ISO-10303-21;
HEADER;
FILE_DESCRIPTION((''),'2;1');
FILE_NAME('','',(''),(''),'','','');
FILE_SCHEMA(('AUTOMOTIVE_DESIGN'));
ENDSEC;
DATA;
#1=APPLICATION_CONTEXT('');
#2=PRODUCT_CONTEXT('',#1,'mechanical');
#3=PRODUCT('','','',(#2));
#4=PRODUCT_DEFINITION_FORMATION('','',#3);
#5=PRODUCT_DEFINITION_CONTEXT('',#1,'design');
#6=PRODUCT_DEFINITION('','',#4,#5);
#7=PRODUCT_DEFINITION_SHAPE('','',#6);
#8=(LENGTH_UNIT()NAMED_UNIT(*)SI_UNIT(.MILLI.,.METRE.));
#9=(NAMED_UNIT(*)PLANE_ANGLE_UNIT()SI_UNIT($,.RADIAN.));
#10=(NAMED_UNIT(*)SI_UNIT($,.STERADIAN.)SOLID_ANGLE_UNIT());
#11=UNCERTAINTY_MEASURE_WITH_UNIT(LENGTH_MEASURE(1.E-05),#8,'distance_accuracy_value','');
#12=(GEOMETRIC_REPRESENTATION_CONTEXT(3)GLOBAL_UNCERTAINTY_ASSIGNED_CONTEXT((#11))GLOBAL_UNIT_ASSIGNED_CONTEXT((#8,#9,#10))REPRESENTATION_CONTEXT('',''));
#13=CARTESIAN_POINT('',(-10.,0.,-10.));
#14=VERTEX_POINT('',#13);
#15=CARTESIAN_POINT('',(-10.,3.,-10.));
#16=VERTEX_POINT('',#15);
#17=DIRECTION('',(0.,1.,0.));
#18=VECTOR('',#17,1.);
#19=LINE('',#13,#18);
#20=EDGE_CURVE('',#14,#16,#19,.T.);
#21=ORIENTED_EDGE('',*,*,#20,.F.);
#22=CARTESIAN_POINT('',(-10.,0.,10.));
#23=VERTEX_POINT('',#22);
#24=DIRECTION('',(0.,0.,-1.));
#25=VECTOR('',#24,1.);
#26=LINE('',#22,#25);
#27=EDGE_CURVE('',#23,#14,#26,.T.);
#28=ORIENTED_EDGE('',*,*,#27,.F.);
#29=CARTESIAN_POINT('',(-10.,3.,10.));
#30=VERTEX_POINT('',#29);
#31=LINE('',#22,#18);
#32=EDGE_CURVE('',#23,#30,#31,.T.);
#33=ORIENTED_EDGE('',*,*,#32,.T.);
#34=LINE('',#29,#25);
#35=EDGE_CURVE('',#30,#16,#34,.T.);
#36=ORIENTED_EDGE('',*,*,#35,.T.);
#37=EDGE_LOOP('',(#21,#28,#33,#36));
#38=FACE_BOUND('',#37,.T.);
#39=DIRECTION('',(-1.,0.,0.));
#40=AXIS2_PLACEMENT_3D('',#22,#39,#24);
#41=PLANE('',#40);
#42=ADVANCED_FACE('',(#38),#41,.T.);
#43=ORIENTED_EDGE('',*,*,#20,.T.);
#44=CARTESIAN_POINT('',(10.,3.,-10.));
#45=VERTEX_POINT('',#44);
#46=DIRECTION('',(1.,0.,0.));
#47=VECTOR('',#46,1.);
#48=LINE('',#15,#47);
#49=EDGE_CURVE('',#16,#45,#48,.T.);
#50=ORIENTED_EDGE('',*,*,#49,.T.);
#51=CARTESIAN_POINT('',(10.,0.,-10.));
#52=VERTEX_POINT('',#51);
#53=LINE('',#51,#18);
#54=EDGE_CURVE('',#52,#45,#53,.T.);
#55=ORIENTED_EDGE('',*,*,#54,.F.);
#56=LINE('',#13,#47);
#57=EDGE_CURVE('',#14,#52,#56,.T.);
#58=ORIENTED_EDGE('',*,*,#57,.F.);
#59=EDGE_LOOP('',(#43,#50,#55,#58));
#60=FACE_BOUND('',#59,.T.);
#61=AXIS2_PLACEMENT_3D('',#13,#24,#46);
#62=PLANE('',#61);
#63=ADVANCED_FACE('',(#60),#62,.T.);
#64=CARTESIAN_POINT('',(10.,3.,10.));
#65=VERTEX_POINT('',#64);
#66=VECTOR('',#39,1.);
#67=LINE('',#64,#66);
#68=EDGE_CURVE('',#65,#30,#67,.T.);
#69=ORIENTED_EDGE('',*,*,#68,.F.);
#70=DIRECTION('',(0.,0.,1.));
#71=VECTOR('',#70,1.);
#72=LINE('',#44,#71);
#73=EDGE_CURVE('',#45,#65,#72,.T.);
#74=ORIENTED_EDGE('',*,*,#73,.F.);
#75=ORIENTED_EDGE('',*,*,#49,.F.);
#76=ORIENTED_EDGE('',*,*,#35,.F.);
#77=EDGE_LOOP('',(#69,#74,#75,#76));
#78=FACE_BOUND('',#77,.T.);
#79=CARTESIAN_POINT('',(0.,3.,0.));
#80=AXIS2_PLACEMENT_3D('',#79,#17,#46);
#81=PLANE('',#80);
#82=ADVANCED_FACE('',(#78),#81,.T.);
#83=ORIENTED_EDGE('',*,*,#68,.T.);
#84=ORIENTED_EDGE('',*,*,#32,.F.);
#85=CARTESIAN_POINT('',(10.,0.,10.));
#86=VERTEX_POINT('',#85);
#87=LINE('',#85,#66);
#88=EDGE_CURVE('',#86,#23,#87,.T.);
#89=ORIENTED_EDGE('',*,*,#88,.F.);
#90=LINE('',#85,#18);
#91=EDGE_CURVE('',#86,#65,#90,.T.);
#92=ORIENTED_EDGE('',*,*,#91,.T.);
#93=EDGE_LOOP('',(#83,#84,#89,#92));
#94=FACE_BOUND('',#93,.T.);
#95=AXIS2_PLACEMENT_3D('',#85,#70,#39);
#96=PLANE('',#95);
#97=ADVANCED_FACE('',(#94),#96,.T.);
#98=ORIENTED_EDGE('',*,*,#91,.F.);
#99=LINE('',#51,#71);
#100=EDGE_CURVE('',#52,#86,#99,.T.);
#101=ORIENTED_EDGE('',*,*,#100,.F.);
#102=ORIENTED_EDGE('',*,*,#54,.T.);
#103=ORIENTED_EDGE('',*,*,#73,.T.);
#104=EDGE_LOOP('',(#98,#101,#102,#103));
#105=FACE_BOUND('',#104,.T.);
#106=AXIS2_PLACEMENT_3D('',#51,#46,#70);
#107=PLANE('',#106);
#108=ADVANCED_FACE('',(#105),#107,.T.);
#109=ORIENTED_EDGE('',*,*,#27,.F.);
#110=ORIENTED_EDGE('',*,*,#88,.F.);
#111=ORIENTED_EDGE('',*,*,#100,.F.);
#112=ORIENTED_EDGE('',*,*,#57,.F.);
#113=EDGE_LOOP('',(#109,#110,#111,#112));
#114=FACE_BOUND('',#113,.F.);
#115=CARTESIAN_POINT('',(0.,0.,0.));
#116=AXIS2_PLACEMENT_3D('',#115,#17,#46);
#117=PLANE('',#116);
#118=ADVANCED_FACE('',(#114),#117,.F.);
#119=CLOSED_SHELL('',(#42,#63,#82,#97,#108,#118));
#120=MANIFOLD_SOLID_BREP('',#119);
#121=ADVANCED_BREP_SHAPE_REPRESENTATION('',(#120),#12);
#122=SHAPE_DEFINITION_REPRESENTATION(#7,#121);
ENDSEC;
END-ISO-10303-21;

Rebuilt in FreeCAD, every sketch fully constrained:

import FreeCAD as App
import Part
import Sketcher

doc = App.newDocument("Part")
body = doc.addObject("PartDesign::Body", "Body")

# Sketch on XZ plane
sketch1 = doc.addObject("Sketcher::SketchObject", "Sketch")
body.addObject(sketch1)
sketch1.AttachmentSupport = (doc.XZ_Plane, [""])
sketch1.MapMode = "FlatFace"
sketch1.addGeometry([
    Part.LineSegment(App.Vector(10, -10, 0), App.Vector(-10, -10, 0)),
    Part.LineSegment(App.Vector(-10, -10, 0), App.Vector(-10, 10, 0)),
    Part.LineSegment(App.Vector(-10, 10, 0), App.Vector(10, 10, 0)),
    Part.LineSegment(App.Vector(10, 10, 0), App.Vector(10, -10, 0)),
], False)
sketch1.addConstraint([
    Sketcher.Constraint("Coincident", 0, 2, 1, 1),
    Sketcher.Constraint("Coincident", 1, 2, 2, 1),
    Sketcher.Constraint("Coincident", 2, 2, 3, 1),
    Sketcher.Constraint("Coincident", 3, 2, 0, 1),
    Sketcher.Constraint("Horizontal", 0),
    Sketcher.Constraint("Vertical", 1),
    Sketcher.Constraint("Horizontal", 2),
    Sketcher.Constraint("Vertical", 3),
    Sketcher.Constraint("Symmetric", 0, 2, 2, 2, -1, 1),
    Sketcher.Constraint("Equal", 2, 1),
    Sketcher.Constraint("DistanceX", 0, 2, 0, 1, 20.0),
])
pad1 = doc.addObject("PartDesign::Pad", "Pad")
body.addObject(pad1)
pad1.Profile = sketch1
pad1.Length = 3
pad1.Reversed = True

doc.recompute()
